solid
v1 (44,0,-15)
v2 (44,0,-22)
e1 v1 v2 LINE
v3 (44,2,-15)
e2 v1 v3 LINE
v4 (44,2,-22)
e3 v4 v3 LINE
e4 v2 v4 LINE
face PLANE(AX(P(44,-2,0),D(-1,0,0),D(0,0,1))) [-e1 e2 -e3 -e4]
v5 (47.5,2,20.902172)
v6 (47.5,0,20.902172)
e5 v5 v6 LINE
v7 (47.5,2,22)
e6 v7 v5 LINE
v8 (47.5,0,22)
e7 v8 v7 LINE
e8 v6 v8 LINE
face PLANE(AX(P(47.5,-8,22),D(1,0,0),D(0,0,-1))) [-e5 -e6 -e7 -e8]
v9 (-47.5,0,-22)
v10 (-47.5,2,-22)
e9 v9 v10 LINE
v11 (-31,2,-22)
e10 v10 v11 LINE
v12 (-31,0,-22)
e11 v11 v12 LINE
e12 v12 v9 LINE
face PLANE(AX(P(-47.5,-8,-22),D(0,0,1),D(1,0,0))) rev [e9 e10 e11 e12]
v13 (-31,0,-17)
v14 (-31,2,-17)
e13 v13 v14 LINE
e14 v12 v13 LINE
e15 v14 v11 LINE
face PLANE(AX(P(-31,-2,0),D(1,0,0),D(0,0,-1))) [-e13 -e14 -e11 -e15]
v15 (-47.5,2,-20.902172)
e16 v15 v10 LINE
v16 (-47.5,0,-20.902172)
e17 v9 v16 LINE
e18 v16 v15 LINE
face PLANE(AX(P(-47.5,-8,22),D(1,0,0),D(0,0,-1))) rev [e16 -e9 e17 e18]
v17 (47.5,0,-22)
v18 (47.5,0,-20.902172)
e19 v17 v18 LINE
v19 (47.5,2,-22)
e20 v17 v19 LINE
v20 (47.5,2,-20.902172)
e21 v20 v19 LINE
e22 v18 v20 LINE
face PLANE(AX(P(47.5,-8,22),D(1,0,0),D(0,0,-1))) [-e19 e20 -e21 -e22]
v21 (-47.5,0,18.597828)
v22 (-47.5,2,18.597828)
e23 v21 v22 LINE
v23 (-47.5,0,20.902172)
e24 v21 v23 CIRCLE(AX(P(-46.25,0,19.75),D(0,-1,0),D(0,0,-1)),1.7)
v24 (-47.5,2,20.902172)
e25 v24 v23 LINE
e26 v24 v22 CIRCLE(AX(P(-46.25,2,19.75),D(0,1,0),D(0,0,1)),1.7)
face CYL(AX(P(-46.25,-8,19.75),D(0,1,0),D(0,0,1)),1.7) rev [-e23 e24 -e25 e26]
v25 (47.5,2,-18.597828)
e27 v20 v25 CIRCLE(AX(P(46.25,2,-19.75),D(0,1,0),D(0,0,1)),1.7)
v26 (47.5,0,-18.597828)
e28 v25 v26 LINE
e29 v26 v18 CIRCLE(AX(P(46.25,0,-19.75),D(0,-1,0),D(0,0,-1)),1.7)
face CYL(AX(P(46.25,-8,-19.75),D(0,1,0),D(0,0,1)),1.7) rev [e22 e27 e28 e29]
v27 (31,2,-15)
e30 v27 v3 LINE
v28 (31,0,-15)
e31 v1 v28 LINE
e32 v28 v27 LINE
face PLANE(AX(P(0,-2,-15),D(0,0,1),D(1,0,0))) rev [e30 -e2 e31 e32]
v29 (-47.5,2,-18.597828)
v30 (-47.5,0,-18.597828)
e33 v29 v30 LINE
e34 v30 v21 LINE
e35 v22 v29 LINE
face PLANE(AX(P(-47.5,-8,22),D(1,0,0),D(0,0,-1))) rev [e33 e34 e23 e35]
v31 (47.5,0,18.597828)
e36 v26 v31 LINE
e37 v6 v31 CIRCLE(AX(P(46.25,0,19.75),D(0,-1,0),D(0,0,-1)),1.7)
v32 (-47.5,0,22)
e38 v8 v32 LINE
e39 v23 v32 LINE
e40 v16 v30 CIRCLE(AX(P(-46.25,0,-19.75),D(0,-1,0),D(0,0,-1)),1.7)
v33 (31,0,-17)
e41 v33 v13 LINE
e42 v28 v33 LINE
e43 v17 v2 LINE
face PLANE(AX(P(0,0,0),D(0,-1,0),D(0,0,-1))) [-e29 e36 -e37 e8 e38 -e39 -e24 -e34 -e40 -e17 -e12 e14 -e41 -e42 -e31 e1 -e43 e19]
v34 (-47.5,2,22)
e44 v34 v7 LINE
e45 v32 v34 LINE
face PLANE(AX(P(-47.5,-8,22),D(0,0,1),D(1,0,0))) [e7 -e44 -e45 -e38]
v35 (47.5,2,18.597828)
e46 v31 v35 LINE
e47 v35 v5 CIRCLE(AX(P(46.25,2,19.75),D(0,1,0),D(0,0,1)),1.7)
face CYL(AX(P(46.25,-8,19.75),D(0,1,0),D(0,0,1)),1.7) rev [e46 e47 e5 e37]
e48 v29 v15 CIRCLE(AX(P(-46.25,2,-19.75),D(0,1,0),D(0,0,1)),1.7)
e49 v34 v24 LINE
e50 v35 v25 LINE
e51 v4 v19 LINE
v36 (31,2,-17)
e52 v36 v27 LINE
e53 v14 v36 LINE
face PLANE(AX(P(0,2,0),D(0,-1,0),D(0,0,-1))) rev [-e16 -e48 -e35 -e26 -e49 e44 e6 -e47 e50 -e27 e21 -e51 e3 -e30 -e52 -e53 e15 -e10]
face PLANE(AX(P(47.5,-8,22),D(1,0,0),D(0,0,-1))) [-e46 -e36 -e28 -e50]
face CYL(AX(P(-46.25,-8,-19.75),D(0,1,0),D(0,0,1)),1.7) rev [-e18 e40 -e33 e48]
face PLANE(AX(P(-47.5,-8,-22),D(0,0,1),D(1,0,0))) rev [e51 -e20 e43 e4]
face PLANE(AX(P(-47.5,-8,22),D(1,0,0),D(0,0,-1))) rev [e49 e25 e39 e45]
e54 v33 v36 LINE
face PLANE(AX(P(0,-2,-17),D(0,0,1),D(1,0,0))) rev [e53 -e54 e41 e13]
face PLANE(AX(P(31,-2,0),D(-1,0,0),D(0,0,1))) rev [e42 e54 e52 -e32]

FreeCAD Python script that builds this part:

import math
import FreeCAD as App
import Part
import Sketcher
from FreeCAD import Vector


def edges_at(feature, points):
    """Names of the edges that pass closest to the given points."""
    edges = feature.Shape.Edges
    near = lambda p: min(range(len(edges)), key=lambda i: edges[i].distToShape(Part.Vertex(*p))[0])
    return sorted({f"Edge{near(p) + 1}" for p in points})


def add_polygon(sketch, points):
    """Adds a closed chain of lines whose ends are joined by coincident constraints."""
    first, n = sketch.GeometryCount, len(points)
    for a, b in zip(points, points[1:] + points[:1]):
        sketch.addGeometry(Part.LineSegment(App.Vector(*a, 0), App.Vector(*b, 0)), False)
    for i in range(n):
        sketch.addConstraint(Sketcher.Constraint("Coincident", first + i, 2, first + (i + 1) % n, 1))

doc = App.newDocument("Part")
body = doc.addObject("PartDesign::Body", "Body")

# Sketch on XZ plane
sketch1 = body.newObject("Sketcher::SketchObject", "Sketch")
sketch1.AttachmentSupport = (doc.getObject("XZ_Plane"), [""])
sketch1.MapMode = "FlatFace"
add_polygon(sketch1, [(-51, -25), (-51, 25), (51, 25), (51, -25)])  # lines 0-3
sketch1.addConstraint([
    Sketcher.Constraint("Vertical", 0),
    Sketcher.Constraint("Horizontal", 1),
    Sketcher.Constraint("Vertical", 2),
    Sketcher.Constraint("Horizontal", 3),
    Sketcher.Constraint("Symmetric", 0, 2, 2, 2, -1, 1),
    Sketcher.Constraint("DistanceX", 1, 1, 1, 2, 102.0),
    Sketcher.Constraint("DistanceY", 0, 1, 0, 2, 50.0),
])
pad1 = body.newObject("PartDesign::Pad", "Pad")
pad1.Profile = sketch1
pad1.Length = 2
pad1.Reversed = True

# Sketch on XZ plane
sketch2 = body.newObject("Sketcher::SketchObject", "Sketch001")
sketch2.AttachmentSupport = (doc.getObject("XZ_Plane"), [""])
sketch2.MapMode = "FlatFace"
add_polygon(sketch2, [(-49, -23), (-49, 23), (49, 23), (49, -23)])  # lines 0-3
sketch2.addConstraint([
    Sketcher.Constraint("Vertical", 0),
    Sketcher.Constraint("Horizontal", 1),
    Sketcher.Constraint("Vertical", 2),
    Sketcher.Constraint("Horizontal", 3),
    Sketcher.Constraint("Symmetric", 0, 2, 2, 2, -1, 1),
    Sketcher.Constraint("DistanceX", 1, 1, 1, 2, 98.0),
    Sketcher.Constraint("DistanceY", 0, 1, 0, 2, 46.0),
])
pad2 = body.newObject("PartDesign::Pad", "Pad001")
pad2.Profile = sketch2
pad2.Length = 2
pad2.Reversed = True
doc.recompute()

fillet = body.newObject("PartDesign::Fillet", "Fillet")
fillet.Base = (pad2, edges_at(pad2, [
    (51, 1, 25),
    (-51, 1, 25),
    (-51, 1, -25),
    (51, 1, -25),
]))
fillet.Radius = 2

# Sketch on XZ plane
sketch3 = body.newObject("Sketcher::SketchObject", "Sketch002")
sketch3.AttachmentSupport = (doc.getObject("XZ_Plane"), [""])
sketch3.MapMode = "FlatFace"
sketch3.AttachmentOffset = App.Placement(Vector(0, 0, -2), App.Rotation())
sketch3.addGeometry([
    Part.ArcOfCircle(Part.Circle(Vector(-46.2, -19.8, 0), Vector(0, 0, 1), 1), math.radians(90), math.radians(360)),  # 0
    Part.ArcOfCircle(Part.Circle(Vector(-46.3, -19.8, 0), Vector(0, 0, 1), 1), math.radians(0), math.radians(90)),  # 1
    Part.ArcOfCircle(Part.Circle(Vector(-46.3, 19.8, 0), Vector(0, 0, 1), 1), math.radians(-90), math.radians(0)),  # 2
    Part.ArcOfCircle(Part.Circle(Vector(-46.2, 19.8, 0), Vector(0, 0, 1), 1), math.radians(0), math.radians(270)),  # 3
    Part.ArcOfCircle(Part.Circle(Vector(46.3, 19.8, 0), Vector(0, 0, 1), 1), math.radians(-180), math.radians(-90)),  # 4
    Part.ArcOfCircle(Part.Circle(Vector(46.2, 19.8, 0), Vector(0, 0, 1), 1), math.radians(0), math.radians(180)),  # 5
    Part.ArcOfCircle(Part.Circle(Vector(46.2, 19.8, 0), Vector(0, 0, 1), 1), math.radians(-90), math.radians(0)),  # 6
    Part.ArcOfCircle(Part.Circle(Vector(46.3, -19.8, 0), Vector(0, 0, 1), 1), math.radians(90), math.radians(180)),  # 7
    Part.ArcOfCircle(Part.Circle(Vector(46.2, -19.8, 0), Vector(0, 0, 1), 1), math.radians(0), math.radians(90)),  # 8
    Part.ArcOfCircle(Part.Circle(Vector(46.2, -19.8, 0), Vector(0, 0, 1), 1), math.radians(180), math.radians(360)),  # 9
], False)
sketch3.addConstraint([
    Sketcher.Constraint("Tangent", 0, 1, 1, 2),
    Sketcher.Constraint("Coincident", 1, 1, 0, 2),
    Sketcher.Constraint("Tangent", 2, 1, 3, 2),
    Sketcher.Constraint("Coincident", 3, 1, 2, 2),
    Sketcher.Constraint("Tangent", 4, 1, 5, 2),
    Sketcher.Constraint("Tangent", 5, 1, 6, 2),
    Sketcher.Constraint("Tangent", 6, 1, 4, 2),
    Sketcher.Constraint("Tangent", 7, 1, 8, 2),
    Sketcher.Constraint("Tangent", 8, 1, 9, 2),
    Sketcher.Constraint("Tangent", 9, 1, 7, 2),
    Sketcher.Constraint("Equal", 1, 2),
    Sketcher.Constraint("Equal", 3, 4),
    Sketcher.Constraint("Equal", 6, 7),
    Sketcher.Constraint("Symmetric", 0, 3, 4, 3, -1, 1),
    Sketcher.Constraint("Symmetric", 2, 3, 7, 3, -1, 1),
    Sketcher.Constraint("Symmetric", 2, 3, 4, 3, -2),
    Sketcher.Constraint("Horizontal", 9, 3, 1, 1),
    Sketcher.Constraint("Horizontal", 6, 3, 3, 1),
    Sketcher.Constraint("Horizontal", 3, 1, 4, 1),
    Sketcher.Constraint("Horizontal", 4, 1, 5, 1),
    Sketcher.Constraint("Horizontal", 1, 1, 8, 1),
    Sketcher.Constraint("Horizontal", 8, 1, 9, 1),
    Sketcher.Constraint("Vertical", 3, 3, 0, 1),
    Sketcher.Constraint("Vertical", 0, 1, 2, 1),
    Sketcher.Constraint("Vertical", 9, 3, 6, 1),
    Sketcher.Constraint("Vertical", 6, 1, 7, 1),
    Sketcher.Constraint("Radius", 0, 1.0),
    Sketcher.Constraint("DistanceY", 0, 3, 2, 3, 39.5),
    Sketcher.Constraint("DistanceX", 3, 3, 4, 3, 92.5),
])
pocket1 = body.newObject("PartDesign::Pocket", "Pocket")
pocket1.Profile = sketch3
pocket1.Length = 1.6
pocket1.Reversed = True

# Sketch on XZ plane
sketch4 = body.newObject("Sketcher::SketchObject", "Sketch003")
sketch4.AttachmentSupport = (doc.getObject("XZ_Plane"), [""])
sketch4.MapMode = "FlatFace"
sketch4.AttachmentOffset = App.Placement(Vector(0, 0, -2), App.Rotation())
add_polygon(sketch4, [(-31, -25), (-31, -17), (31, -17), (31, -15), (44, -15), (44, -25)])  # lines 0-5
sketch4.addConstraint([
    Sketcher.Constraint("Vertical", 0),
    Sketcher.Constraint("Horizontal", 1),
    Sketcher.Constraint("Vertical", 2),
    Sketcher.Constraint("Horizontal", 3),
    Sketcher.Constraint("Vertical", 4),
    Sketcher.Constraint("Horizontal", 5),
    Sketcher.Constraint("DistanceX", 1, 1, 1, 2, 62.0),
    Sketcher.Constraint("DistanceX", 3, 1, 3, 2, 13.0),
    Sketcher.Constraint("DistanceY", 0, 1, 0, 2, 8.0),
    Sketcher.Constraint("DistanceY", 2, 1, 2, 2, 2.0),
    Sketcher.Constraint("DistanceX", 0, 2, -1, 1, 31.0),
    Sketcher.Constraint("DistanceY", 0, 2, -1, 1, 17.0),
])
pocket2 = body.newObject("PartDesign::Pocket", "Pocket001")
pocket2.Profile = sketch4
pocket2.Length = 4
pocket2.Reversed = True

# Sketch on XZ plane
sketch5 = body.newObject("Sketcher::SketchObject", "Sketch004")
sketch5.AttachmentSupport = (doc.getObject("XZ_Plane"), [""])
sketch5.MapMode = "FlatFace"
sketch5.AttachmentOffset = App.Placement(Vector(0, 0, -2), App.Rotation())
add_polygon(sketch5, [(-63, -37), (-63, 37), (63, 37), (63, -37)])  # lines 0-3
add_polygon(sketch5, [(48, 22), (-48, 22), (-48, -22), (48, -22)])  # lines 4-7
sketch5.addConstraint([
    Sketcher.Constraint("Vertical", 0),
    Sketcher.Constraint("Horizontal", 1),
    Sketcher.Constraint("Vertical", 2),
    Sketcher.Constraint("Horizontal", 3),
    Sketcher.Constraint("Horizontal", 4),
    Sketcher.Constraint("Vertical", 5),
    Sketcher.Constraint("Horizontal", 6),
    Sketcher.Constraint("Vertical", 7),
    Sketcher.Constraint("Symmetric", 0, 2, 2, 2, -1, 1),
    Sketcher.Constraint("Symmetric", 4, 2, 6, 2, -1, 1),
    Sketcher.Constraint("DistanceX", 4, 2, 4, 1, 95.0),
    Sketcher.Constraint("DistanceY", 5, 2, 5, 1, 44.0),
    Sketcher.Constraint("DistanceX", 1, 1, 1, 2, 126.722),
    Sketcher.Constraint("DistanceY", 0, 1, 0, 2, 74.722),
])
pocket3 = body.newObject("PartDesign::Pocket", "Pocket002")
pocket3.Profile = sketch5
pocket3.Length = 10
pocket3.Reversed = True

# Sketch on XZ plane
sketch6 = body.newObject("Sketcher::SketchObject", "Sketch005")
sketch6.AttachmentSupport = (doc.getObject("XZ_Plane"), [""])
sketch6.MapMode = "FlatFace"
sketch6.AttachmentOffset = App.Placement(Vector(0, 0, -0.4), App.Rotation())
sketch6.addGeometry([
    Part.Circle(Vector(-46.25, -19.75, 0), Vector(0, 0, 1), 0.25),
    Part.Circle(Vector(-46.25, 19.75, 0), Vector(0, 0, 1), 0.25),
    Part.Circle(Vector(46.25, -19.75, 0), Vector(0, 0, 1), 0.25),
    Part.Circle(Vector(46.25, 19.75, 0), Vector(0, 0, 1), 0.25),
], False)
sketch6.addConstraint([
    Sketcher.Constraint("Equal", 0, 1),
    Sketcher.Constraint("Equal", 1, 2),
    Sketcher.Constraint("Equal", 2, 3),
    Sketcher.Constraint("Symmetric", 1, 3, 2, 3, -1, 1),
    Sketcher.Constraint("Symmetric", 0, 3, 3, 3, -1, 1),
    Sketcher.Constraint("Symmetric", 0, 3, 2, 3, -2),
    Sketcher.Constraint("Diameter", 0, 0.5),
    Sketcher.Constraint("DistanceY", 0, 3, 1, 3, 39.5),
    Sketcher.Constraint("DistanceX", 0, 3, 2, 3, 92.5),
])
pocket4 = body.newObject("PartDesign::Pocket", "Pocket003")
pocket4.Profile = sketch6
pocket4.Length = 10
pocket4.Reversed = True

# Sketch on XZ plane
sketch7 = body.newObject("Sketcher::SketchObject", "Sketch006")
sketch7.AttachmentSupport = (doc.getObject("XZ_Plane"), [""])
sketch7.MapMode = "FlatFace"
sketch7.AttachmentOffset = App.Placement(Vector(0, 0, -2), App.Rotation())
sketch7.addGeometry([
    Part.Circle(Vector(-46.2, 19.8, 0), Vector(0, 0, 1), 1.7),
    Part.Circle(Vector(-46.2, -19.8, 0), Vector(0, 0, 1), 1.7),
    Part.Circle(Vector(46.2, -19.8, 0), Vector(0, 0, 1), 1.7),
    Part.Circle(Vector(46.2, 19.8, 0), Vector(0, 0, 1), 1.7),
], False)
sketch7.addConstraint([
    Sketcher.Constraint("Equal", 0, 1),
    Sketcher.Constraint("Equal", 1, 2),
    Sketcher.Constraint("Equal", 2, 3),
    Sketcher.Constraint("Symmetric", 0, 3, 2, 3, -1, 1),
    Sketcher.Constraint("Symmetric", 1, 3, 3, 3, -1, 1),
    Sketcher.Constraint("Symmetric", 1, 3, 2, 3, -2),
    Sketcher.Constraint("Diameter", 0, 3.4),
    Sketcher.Constraint("DistanceY", 1, 3, 0, 3, 39.5),
    Sketcher.Constraint("DistanceX", 1, 3, 2, 3, 92.5),
])
pocket5 = body.newObject("PartDesign::Pocket", "Pocket004")
pocket5.Profile = sketch7
pocket5.Length = 10
pocket5.Reversed = True

doc.recompute()
